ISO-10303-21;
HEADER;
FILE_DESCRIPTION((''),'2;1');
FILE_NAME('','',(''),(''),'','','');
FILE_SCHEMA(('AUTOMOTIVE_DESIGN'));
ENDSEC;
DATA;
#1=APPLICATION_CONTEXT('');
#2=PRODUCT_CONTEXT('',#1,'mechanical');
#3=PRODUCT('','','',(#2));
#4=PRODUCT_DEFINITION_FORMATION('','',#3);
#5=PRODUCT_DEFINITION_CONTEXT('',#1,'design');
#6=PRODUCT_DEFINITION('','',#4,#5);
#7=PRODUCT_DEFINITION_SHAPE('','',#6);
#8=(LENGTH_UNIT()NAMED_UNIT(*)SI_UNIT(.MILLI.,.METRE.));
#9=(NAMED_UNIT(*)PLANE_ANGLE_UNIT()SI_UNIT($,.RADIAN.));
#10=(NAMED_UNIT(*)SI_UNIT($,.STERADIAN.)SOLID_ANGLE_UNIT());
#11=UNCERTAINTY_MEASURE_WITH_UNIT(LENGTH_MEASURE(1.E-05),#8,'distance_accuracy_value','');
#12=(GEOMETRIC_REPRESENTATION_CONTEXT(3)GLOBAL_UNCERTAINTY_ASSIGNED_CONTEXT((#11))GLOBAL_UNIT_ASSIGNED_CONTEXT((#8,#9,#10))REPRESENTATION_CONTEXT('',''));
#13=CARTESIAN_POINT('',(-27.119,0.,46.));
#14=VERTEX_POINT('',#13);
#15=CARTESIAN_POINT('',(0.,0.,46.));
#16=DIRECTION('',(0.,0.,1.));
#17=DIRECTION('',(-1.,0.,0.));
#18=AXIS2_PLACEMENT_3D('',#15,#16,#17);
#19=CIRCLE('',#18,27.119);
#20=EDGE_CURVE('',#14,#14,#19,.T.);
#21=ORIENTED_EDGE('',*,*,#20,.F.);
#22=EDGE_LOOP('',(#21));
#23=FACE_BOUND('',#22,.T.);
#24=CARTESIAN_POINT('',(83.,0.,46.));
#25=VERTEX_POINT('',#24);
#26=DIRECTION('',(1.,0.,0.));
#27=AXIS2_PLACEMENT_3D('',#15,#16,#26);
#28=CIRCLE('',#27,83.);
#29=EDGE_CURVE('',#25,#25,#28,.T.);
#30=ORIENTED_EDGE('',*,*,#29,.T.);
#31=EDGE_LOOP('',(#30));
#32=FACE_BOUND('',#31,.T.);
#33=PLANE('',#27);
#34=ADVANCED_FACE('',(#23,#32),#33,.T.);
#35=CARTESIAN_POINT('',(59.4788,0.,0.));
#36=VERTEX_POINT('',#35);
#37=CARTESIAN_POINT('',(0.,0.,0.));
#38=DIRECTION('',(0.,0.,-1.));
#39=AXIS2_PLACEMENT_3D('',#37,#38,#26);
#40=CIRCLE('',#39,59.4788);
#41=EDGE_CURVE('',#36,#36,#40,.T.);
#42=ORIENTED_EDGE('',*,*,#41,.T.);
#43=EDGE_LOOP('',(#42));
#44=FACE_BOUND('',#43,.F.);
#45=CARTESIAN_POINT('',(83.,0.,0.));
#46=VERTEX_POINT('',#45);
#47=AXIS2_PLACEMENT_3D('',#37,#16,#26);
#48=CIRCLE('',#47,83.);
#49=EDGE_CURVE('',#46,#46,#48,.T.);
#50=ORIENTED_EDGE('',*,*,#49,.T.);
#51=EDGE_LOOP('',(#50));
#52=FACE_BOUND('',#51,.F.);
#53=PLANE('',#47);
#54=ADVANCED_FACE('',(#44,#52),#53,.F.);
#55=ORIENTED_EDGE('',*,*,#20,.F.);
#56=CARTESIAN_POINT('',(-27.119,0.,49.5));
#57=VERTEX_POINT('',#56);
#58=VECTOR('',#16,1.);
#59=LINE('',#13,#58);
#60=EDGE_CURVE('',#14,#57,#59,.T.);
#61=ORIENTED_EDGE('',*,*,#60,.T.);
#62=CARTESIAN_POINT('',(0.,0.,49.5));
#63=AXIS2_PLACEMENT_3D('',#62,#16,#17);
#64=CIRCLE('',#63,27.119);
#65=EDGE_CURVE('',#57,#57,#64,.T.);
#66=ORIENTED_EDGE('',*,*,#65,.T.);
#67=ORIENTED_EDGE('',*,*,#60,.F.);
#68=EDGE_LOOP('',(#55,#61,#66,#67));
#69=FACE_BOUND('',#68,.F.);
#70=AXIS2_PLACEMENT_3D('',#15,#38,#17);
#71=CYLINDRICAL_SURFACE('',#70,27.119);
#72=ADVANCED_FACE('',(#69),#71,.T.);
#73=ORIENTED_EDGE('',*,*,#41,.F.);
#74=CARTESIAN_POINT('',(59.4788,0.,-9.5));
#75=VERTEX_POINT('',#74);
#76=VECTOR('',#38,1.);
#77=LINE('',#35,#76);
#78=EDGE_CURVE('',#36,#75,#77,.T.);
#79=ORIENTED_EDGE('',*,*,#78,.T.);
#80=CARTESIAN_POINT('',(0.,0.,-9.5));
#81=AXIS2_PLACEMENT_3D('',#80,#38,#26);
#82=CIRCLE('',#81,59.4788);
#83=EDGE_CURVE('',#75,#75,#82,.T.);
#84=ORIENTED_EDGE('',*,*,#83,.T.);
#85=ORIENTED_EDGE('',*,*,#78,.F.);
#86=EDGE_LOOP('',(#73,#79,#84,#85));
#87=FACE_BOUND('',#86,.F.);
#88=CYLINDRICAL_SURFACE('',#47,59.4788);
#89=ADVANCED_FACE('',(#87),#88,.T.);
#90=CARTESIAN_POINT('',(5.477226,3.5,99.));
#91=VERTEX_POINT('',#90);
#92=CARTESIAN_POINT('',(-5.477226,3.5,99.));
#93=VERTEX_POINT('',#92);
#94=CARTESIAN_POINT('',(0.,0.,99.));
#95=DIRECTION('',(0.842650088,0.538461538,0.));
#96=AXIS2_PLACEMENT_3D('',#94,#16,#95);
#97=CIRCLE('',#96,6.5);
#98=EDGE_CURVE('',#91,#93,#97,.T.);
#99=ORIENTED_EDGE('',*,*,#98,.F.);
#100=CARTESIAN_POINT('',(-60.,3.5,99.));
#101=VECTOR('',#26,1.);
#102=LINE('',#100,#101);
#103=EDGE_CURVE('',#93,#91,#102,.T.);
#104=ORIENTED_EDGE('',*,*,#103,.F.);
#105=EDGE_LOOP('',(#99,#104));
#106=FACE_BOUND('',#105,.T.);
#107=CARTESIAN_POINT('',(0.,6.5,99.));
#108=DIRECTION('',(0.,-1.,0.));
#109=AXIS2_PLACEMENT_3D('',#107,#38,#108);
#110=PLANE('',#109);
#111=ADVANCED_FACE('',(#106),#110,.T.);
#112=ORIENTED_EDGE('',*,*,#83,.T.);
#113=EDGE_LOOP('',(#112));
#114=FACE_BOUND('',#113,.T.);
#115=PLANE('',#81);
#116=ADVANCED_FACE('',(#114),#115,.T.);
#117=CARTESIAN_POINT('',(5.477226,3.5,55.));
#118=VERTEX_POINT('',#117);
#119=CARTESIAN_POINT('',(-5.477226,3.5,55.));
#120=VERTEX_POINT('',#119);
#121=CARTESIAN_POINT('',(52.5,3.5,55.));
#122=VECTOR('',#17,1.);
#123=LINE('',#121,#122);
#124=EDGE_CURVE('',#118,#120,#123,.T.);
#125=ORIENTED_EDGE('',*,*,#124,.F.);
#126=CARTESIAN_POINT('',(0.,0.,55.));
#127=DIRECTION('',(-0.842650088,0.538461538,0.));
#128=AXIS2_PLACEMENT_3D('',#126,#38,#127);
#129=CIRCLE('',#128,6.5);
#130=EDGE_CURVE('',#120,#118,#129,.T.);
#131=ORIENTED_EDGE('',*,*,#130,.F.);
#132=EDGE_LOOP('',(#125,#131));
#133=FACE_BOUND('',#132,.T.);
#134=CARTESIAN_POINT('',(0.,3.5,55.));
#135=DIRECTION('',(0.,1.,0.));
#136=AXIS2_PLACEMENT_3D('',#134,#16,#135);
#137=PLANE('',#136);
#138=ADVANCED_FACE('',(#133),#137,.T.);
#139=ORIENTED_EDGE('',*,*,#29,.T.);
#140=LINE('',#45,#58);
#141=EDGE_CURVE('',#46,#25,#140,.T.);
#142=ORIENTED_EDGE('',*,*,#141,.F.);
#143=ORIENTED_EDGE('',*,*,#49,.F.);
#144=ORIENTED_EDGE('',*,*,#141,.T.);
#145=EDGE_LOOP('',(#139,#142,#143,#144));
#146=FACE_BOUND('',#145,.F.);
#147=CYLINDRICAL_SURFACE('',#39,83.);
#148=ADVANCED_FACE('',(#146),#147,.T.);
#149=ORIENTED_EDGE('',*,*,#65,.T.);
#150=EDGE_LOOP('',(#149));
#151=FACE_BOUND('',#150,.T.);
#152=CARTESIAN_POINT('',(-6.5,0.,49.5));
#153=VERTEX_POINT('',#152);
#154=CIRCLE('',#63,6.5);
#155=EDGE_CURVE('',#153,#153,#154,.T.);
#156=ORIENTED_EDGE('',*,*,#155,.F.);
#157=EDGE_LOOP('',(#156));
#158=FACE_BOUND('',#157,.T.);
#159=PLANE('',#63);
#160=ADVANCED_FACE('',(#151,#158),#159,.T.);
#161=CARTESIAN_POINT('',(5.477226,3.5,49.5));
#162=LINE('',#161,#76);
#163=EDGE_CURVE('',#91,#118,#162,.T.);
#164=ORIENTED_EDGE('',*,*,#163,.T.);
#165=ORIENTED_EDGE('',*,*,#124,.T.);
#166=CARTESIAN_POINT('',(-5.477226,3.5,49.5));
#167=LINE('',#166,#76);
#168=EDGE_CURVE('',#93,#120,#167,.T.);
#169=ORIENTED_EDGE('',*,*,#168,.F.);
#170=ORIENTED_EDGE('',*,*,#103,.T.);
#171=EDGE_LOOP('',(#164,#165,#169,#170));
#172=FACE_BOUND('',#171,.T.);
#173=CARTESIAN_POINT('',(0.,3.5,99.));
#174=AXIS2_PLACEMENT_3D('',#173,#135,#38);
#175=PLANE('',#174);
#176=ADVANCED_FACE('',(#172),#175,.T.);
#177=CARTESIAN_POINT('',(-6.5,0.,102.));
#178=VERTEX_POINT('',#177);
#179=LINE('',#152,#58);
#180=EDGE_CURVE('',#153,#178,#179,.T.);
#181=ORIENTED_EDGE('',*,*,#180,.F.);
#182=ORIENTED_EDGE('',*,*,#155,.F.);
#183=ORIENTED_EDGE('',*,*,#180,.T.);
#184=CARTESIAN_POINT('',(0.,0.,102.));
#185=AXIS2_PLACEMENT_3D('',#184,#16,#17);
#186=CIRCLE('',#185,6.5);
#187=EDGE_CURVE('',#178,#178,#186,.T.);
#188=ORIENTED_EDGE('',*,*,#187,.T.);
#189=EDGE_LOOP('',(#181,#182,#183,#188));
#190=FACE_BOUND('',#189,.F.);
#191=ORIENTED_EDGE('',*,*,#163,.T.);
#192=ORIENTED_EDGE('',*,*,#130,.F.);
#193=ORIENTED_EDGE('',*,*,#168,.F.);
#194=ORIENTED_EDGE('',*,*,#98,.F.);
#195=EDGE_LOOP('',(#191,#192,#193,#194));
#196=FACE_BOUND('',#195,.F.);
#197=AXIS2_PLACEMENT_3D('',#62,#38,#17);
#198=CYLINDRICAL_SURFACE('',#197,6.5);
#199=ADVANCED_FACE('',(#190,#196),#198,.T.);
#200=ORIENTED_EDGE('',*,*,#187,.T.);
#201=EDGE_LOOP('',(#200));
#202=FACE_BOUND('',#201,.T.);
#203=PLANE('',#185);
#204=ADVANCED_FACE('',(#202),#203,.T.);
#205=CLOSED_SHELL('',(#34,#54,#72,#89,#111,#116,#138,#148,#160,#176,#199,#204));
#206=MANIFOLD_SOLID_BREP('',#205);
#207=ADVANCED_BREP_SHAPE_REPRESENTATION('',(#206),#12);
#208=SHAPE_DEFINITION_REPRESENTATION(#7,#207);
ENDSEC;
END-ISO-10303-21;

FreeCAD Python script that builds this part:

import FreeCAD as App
import Part
import Sketcher
Q = App.Units.Quantity


def add_polygon(sketch, points):
    """Adds a closed chain of lines whose ends are joined by coincident constraints."""
    first, n = sketch.GeometryCount, len(points)
    for a, b in zip(points, points[1:] + points[:1]):
        sketch.addGeometry(Part.LineSegment(App.Vector(*a, 0), App.Vector(*b, 0)), False)
    for i in range(n):
        sketch.addConstraint(Sketcher.Constraint("Coincident", first + i, 2, first + (i + 1) % n, 1))

doc = App.newDocument("Part")
body = doc.addObject("PartDesign::Body", "Body")

# Sketch on XY plane
sketch1 = body.newObject("Sketcher::SketchObject", "Sketch")
sketch1.AttachmentSupport = (doc.getObject("XY_Plane"), [""])
sketch1.MapMode = "FlatFace"
sketch1.addGeometry(Part.Circle(App.Vector(0, 0, 0), App.Vector(0, 0, 1), 83), False)
sketch1.addConstraint(Sketcher.Constraint("Coincident", 0, 3, -1, 1))
sketch1.addConstraint(Sketcher.Constraint("Diameter", 0, Q("166 mm")))
pad1 = body.newObject("PartDesign::Pad", "Pad")
pad1.Profile = sketch1
pad1.Length = 46

# Sketch on XY plane
sketch2 = body.newObject("Sketcher::SketchObject", "Sketch001")
sketch2.AttachmentSupport = (doc.getObject("XY_Plane"), [""])
sketch2.MapMode = "FlatFace"
sketch2.AttachmentOffset = App.Placement(App.Vector(0, 0, 46), App.Rotation())
sketch2.addGeometry(Part.Circle(App.Vector(0, 0, 0), App.Vector(0, 0, 1), 27), False)
sketch2.addConstraint(Sketcher.Constraint("Coincident", 0, 3, -1, 1))
sketch2.addConstraint(Sketcher.Constraint("Diameter", 0, Q("54.238 mm")))
pad2 = body.newObject("PartDesign::Pad", "Pad001")
pad2.Profile = sketch2
pad2.Length = 3.5

# Sketch on XY plane
sketch3 = body.newObject("Sketcher::SketchObject", "Sketch002")
sketch3.AttachmentSupport = (doc.getObject("XY_Plane"), [""])
sketch3.MapMode = "FlatFace"
sketch3.AttachmentOffset = App.Placement(App.Vector(0, 0, 49.5), App.Rotation())
sketch3.addGeometry(Part.Circle(App.Vector(0, 0, 0), App.Vector(0, 0, 1), 6), False)
sketch3.addConstraint(Sketcher.Constraint("Coincident", 0, 3, -1, 1))
sketch3.addConstraint(Sketcher.Constraint("Diameter", 0, Q("13 mm")))
pad3 = body.newObject("PartDesign::Pad", "Pad002")
pad3.Profile = sketch3
pad3.Length = 52.5

# Sketch on YZ plane
sketch4 = body.newObject("Sketcher::SketchObject", "Sketch003")
sketch4.AttachmentSupport = (doc.getObject("YZ_Plane"), [""])
sketch4.MapMode = "FlatFace"
add_polygon(sketch4, [(6.5, 55), (6.5, 99), (3.5, 99), (3.5, 55)])  # lines 0-3
sketch4.addConstraint(Sketcher.Constraint("Vertical", 0))
sketch4.addConstraint(Sketcher.Constraint("Horizontal", 1))
sketch4.addConstraint(Sketcher.Constraint("Vertical", 2))
sketch4.addConstraint(Sketcher.Constraint("Horizontal", 3))
sketch4.addConstraint(Sketcher.Constraint("DistanceX", 1, 2, 1, 1, Q("3 mm")))
sketch4.addConstraint(Sketcher.Constraint("DistanceY", 0, 1, 0, 2, Q("44 mm")))
sketch4.addConstraint(Sketcher.Constraint("DistanceY", -1, 1, 0, 2, Q("99 mm")))
sketch4.addConstraint(Sketcher.Constraint("DistanceX", -1, 1, 0, 2, Q("6.5 mm")))
pocket1 = body.newObject("PartDesign::Pocket", "Pocket")
pocket1.Profile = sketch4
pocket1.Type = "ThroughAll"
pocket1.Midplane = True

# Sketch on XY plane
sketch5 = body.newObject("Sketcher::SketchObject", "Sketch004")
sketch5.AttachmentSupport = (doc.getObject("XY_Plane"), [""])
sketch5.MapMode = "FlatFace"
sketch5.addGeometry(Part.Circle(App.Vector(0, 0, 0), App.Vector(0, 0, 1), 59), False)
sketch5.addConstraint(Sketcher.Constraint("Coincident", 0, 3, -1, 1))
sketch5.addConstraint(Sketcher.Constraint("Diameter", 0, Q("118.9576 mm")))
pad4 = body.newObject("PartDesign::Pad", "Pad003")
pad4.Profile = sketch5
pad4.Length = 9.5
pad4.Reversed = True

doc.recompute()
